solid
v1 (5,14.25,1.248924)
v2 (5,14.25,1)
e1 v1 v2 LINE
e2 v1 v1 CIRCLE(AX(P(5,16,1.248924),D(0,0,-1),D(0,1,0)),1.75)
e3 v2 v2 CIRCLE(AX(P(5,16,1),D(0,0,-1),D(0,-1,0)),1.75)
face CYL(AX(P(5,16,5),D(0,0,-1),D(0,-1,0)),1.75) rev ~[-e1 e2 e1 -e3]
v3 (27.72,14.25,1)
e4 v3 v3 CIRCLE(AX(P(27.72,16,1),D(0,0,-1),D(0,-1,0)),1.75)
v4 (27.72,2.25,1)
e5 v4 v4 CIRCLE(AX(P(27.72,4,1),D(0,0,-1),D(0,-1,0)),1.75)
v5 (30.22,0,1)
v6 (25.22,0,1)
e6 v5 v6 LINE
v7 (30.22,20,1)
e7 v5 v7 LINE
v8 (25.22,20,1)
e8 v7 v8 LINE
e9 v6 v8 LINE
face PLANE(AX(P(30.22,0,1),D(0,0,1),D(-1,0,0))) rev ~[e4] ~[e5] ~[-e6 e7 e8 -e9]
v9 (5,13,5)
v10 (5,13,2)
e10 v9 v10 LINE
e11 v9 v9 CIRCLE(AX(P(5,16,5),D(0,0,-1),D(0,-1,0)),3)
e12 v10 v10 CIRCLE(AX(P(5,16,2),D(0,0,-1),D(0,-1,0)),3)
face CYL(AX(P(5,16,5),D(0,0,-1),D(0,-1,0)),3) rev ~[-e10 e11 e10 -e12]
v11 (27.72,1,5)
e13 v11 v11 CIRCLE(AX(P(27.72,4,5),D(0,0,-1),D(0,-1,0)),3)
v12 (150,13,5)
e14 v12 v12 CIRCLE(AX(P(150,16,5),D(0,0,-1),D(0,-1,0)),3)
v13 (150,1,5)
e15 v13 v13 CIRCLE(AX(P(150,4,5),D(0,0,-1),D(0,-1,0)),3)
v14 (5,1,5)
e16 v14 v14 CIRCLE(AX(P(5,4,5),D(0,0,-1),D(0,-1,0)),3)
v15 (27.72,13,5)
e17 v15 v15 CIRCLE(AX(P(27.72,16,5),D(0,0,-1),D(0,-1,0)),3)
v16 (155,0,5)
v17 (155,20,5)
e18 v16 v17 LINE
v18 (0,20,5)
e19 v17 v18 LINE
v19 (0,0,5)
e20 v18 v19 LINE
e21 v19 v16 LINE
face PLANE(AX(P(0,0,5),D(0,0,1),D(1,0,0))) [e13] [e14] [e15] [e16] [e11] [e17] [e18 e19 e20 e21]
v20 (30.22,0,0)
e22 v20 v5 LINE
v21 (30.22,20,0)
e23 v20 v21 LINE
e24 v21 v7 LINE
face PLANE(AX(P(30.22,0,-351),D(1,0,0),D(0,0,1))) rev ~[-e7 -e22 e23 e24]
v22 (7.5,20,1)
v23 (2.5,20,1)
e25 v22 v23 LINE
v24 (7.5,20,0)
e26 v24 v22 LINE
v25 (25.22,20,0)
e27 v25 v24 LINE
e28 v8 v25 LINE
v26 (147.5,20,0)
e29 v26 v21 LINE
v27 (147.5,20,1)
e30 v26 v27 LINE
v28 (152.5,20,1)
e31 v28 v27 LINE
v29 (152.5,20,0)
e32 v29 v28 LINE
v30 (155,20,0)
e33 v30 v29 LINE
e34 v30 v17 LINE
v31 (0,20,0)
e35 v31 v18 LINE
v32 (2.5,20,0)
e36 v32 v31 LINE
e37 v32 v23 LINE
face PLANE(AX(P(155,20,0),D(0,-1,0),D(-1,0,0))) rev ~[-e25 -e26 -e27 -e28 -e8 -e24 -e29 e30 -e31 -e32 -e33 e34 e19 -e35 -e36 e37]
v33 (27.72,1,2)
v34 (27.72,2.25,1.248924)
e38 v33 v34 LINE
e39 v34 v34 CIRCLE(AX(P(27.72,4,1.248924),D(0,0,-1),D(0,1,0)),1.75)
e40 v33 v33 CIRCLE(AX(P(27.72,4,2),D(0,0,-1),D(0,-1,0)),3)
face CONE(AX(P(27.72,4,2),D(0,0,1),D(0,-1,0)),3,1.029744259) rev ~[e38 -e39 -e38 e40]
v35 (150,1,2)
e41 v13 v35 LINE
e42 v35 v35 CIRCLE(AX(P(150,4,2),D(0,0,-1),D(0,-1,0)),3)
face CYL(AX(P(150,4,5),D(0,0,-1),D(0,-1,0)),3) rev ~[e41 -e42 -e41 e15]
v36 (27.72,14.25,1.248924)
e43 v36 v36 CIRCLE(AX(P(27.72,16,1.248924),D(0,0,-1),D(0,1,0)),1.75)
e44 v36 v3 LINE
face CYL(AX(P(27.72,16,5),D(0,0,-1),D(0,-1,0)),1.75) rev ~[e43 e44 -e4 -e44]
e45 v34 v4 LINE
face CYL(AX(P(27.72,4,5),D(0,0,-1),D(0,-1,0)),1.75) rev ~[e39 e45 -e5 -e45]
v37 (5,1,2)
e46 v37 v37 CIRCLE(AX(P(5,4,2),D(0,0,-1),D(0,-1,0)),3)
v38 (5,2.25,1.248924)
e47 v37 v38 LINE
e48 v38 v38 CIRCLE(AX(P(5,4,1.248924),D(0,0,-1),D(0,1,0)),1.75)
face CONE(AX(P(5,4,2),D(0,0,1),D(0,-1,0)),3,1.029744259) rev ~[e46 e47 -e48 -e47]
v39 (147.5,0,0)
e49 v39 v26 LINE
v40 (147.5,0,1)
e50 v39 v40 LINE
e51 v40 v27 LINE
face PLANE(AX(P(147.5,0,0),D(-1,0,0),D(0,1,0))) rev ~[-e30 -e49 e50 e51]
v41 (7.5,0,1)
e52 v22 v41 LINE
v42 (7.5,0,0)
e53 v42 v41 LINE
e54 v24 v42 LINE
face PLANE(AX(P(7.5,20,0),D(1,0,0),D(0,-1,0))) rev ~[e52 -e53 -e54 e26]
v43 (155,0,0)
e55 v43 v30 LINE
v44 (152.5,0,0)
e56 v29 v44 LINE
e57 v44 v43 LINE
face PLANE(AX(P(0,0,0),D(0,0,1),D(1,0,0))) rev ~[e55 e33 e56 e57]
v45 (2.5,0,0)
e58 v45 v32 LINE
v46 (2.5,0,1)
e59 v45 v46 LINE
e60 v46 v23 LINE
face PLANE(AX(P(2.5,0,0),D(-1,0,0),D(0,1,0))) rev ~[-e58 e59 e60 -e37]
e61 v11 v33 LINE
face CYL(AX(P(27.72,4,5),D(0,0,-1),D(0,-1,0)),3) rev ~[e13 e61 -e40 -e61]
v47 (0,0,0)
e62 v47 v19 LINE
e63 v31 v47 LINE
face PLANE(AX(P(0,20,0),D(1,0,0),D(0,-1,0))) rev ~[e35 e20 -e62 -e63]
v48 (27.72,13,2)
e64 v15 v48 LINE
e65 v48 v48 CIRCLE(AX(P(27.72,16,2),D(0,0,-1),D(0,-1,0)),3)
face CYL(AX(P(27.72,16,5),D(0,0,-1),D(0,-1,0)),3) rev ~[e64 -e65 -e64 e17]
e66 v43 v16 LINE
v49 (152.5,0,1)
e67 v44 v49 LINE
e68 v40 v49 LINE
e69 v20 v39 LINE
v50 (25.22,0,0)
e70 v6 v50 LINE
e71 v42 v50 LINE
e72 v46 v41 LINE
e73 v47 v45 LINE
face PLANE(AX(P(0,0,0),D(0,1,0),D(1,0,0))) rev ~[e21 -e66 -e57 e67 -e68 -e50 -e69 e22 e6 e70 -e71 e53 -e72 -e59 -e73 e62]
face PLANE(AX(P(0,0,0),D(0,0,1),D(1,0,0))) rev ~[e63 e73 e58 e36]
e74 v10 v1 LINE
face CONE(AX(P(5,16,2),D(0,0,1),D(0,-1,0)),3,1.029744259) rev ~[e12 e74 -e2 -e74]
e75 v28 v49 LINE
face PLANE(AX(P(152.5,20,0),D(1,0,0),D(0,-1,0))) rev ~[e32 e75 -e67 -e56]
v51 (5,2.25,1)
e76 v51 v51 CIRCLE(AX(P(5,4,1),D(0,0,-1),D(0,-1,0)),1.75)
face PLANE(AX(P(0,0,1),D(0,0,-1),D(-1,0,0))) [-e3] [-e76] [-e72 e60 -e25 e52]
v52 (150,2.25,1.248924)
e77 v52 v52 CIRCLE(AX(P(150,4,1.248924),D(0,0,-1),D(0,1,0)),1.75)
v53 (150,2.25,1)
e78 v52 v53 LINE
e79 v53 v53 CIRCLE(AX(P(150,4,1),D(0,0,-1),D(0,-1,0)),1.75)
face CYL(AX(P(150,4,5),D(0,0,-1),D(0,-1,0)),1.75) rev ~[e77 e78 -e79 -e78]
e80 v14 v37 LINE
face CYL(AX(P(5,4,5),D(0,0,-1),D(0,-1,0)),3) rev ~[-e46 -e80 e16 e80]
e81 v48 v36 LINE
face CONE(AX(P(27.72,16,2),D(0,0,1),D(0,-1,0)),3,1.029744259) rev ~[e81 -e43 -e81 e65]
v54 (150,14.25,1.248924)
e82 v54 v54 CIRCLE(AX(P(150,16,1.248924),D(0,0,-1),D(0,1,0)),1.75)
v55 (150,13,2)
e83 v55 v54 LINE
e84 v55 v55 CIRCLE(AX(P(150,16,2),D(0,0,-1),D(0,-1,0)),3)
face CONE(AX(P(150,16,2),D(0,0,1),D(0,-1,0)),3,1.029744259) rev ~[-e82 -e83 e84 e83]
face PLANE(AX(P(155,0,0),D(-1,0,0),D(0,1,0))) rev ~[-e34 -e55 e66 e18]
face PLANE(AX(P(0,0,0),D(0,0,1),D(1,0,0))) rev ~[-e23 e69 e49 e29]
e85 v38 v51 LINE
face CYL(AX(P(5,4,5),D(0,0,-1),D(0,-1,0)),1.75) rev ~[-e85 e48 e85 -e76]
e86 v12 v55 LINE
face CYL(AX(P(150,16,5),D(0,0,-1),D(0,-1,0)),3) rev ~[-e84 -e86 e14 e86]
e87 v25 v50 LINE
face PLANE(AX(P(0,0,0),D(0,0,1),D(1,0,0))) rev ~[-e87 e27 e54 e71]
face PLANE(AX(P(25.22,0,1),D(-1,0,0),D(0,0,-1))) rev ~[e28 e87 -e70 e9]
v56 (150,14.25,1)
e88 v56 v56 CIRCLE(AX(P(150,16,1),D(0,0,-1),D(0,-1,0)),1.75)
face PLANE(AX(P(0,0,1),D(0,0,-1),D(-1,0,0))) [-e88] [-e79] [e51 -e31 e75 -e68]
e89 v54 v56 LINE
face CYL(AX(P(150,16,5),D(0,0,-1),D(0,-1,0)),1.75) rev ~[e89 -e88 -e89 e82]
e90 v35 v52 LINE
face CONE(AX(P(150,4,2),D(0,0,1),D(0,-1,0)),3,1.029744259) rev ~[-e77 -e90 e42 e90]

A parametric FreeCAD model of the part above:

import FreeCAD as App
import Part
import Sketcher
from FreeCAD import Vector
Q = App.Units.Quantity


def add_polygon(sketch, points):
    """Adds a closed chain of lines whose ends are joined by coincident constraints."""
    first, n = sketch.GeometryCount, len(points)
    for a, b in zip(points, points[1:] + points[:1]):
        sketch.addGeometry(Part.LineSegment(App.Vector(*a, 0), App.Vector(*b, 0)), False)
    for i in range(n):
        sketch.addConstraint(Sketcher.Constraint("Coincident", first + i, 2, first + (i + 1) % n, 1))

doc = App.newDocument("Part")
body = doc.addObject("PartDesign::Body", "Body")

sketch1 = body.newObject("Sketcher::SketchObject", "Sketch")
sketch1.AttachmentSupport = (doc.getObject("XY_Plane"), [""])
sketch1.MapMode = "FlatFace"
add_polygon(sketch1, [(0, 20), (0, 0), (155, 0), (155, 20)])
sketch1.addConstraint([
    Sketcher.Constraint("Vertical", 0),
    Sketcher.Constraint("Horizontal", 1),
    Sketcher.Constraint("Vertical", 2),
    Sketcher.Constraint("Horizontal", 3),
    Sketcher.Constraint("Coincident", 0, 2, -1, 1),
    Sketcher.Constraint("DistanceX", 1, 1, 1, 2, Q("155 mm")),
    Sketcher.Constraint("DistanceY", 0, 2, 0, 1, Q("20 mm")),
])
pad1 = body.newObject("PartDesign::Pad", "Pad")
pad1.Profile = sketch1
pad1.Length = 5

sketch2 = body.newObject("Sketcher::SketchObject", "Sketch001")
sketch2.AttachmentSupport = (doc.getObject("XY_Plane"), [""])
sketch2.MapMode = "FlatFace"
add_polygon(sketch2, [(152, 20), (152, 0), (148, 0), (148, 20)])
add_polygon(sketch2, [(8, 20), (8, 0), (2, 0), (2, 20)])
sketch2.addConstraint([
    Sketcher.Constraint("Vertical", 0),
    Sketcher.Constraint("Horizontal", 1),
    Sketcher.Constraint("Vertical", 2),
    Sketcher.Constraint("Horizontal", 3),
    Sketcher.Constraint("Vertical", 4),
    Sketcher.Constraint("Horizontal", 5),
    Sketcher.Constraint("Vertical", 6),
    Sketcher.Constraint("Horizontal", 7),
    Sketcher.Constraint("PointOnObject", 0, 2, -1),
    Sketcher.Constraint("PointOnObject", 4, 2, -1),
    Sketcher.Constraint("Horizontal", 3, 2, 6, 2),
    Sketcher.Constraint("Equal", 3, 5),
    Sketcher.Constraint("DistanceX", 1, 2, 1, 1, Q("5 mm")),
    Sketcher.Constraint("DistanceX", -1, 1, 5, 2, Q("2.5 mm")),
    Sketcher.Constraint("DistanceY", 0, 2, 0, 1, Q("20 mm")),
    Sketcher.Constraint("DistanceX", 4, 2, 1, 2, Q("140 mm")),
])
pocket1 = body.newObject("PartDesign::Pocket", "Pocket")
pocket1.Profile = sketch2
pocket1.Length = 1
pocket1.Reversed = True

sketch3 = body.newObject("Sketcher::SketchObject", "Sketch002")
sketch3.AttachmentSupport = (doc.getObject("XZ_Plane"), [""])
sketch3.MapMode = "FlatFace"
add_polygon(sketch3, [(30, -351), (30, 1), (25, 1), (25, -351)])
sketch3.addConstraint([
    Sketcher.Constraint("Vertical", 0),
    Sketcher.Constraint("Horizontal", 1),
    Sketcher.Constraint("Vertical", 2),
    Sketcher.Constraint("Horizontal", 3),
    Sketcher.Constraint("DistanceX", 1, 2, 1, 1, Q("5 mm")),
    Sketcher.Constraint("DistanceY", 0, 1, 0, 2, Q("352 mm")),
    Sketcher.Constraint("DistanceY", -1, 1, 0, 2, Q("1 mm")),
    Sketcher.Constraint("DistanceX", -1, 1, 0, 2, Q("30.22 mm")),
])
pocket2 = body.newObject("PartDesign::Pocket", "Pocket001")
pocket2.Profile = sketch3
pocket2.Type = "ThroughAll"

sketch4 = body.newObject("Sketcher::SketchObject", "Sketch003")
sketch4.AttachmentSupport = (doc.getObject("XY_Plane"), [""])
sketch4.MapMode = "FlatFace"
sketch4.AttachmentOffset = App.Placement(Vector(0, 0, 5), App.Rotation())
sketch4.addGeometry([
    Part.Circle(Vector(5, 4, 0), Vector(0, 0, 1), 1.8),
    Part.Circle(Vector(5, 16, 0), Vector(0, 0, 1), 1.8),
    Part.Circle(Vector(27.7, 16, 0), Vector(0, 0, 1), 1.8),
    Part.Circle(Vector(27.7, 4, 0), Vector(0, 0, 1), 1.8),
    Part.Circle(Vector(150, 16, 0), Vector(0, 0, 1), 1.8),
    Part.Circle(Vector(150, 4, 0), Vector(0, 0, 1), 1.8),
], False)
sketch4.addConstraint([
    Sketcher.Constraint("Equal", 0, 1),
    Sketcher.Constraint("Equal", 1, 2),
    Sketcher.Constraint("Equal", 2, 3),
    Sketcher.Constraint("Equal", 3, 4),
    Sketcher.Constraint("Equal", 4, 5),
    Sketcher.Constraint("Horizontal", 1, 3, 2, 3),
    Sketcher.Constraint("Horizontal", 0, 3, 3, 3),
    Sketcher.Constraint("Horizontal", 2, 3, 4, 3),
    Sketcher.Constraint("Horizontal", 3, 3, 5, 3),
    Sketcher.Constraint("Vertical", 0, 3, 1, 3),
    Sketcher.Constraint("Vertical", 2, 3, 3, 3),
    Sketcher.Constraint("Vertical", 4, 3, 5, 3),
    Sketcher.Constraint("Diameter", 0, Q("3.5 mm")),
    Sketcher.Constraint("DistanceX", -1, 1, 0, 3, Q("5 mm")),
    Sketcher.Constraint("DistanceY", -1, 1, 0, 3, Q("4 mm")),
    Sketcher.Constraint("DistanceY", -1, 1, 1, 3, Q("16 mm")),
    Sketcher.Constraint("DistanceX", -1, 1, 4, 3, Q("150 mm")),
    Sketcher.Constraint("DistanceX", -1, 1, 2, 3, Q("27.72 mm")),
])
doc.recompute()
hole = body.newObject("PartDesign::Hole", "Hole")
hole.Profile = sketch4
hole.ThreadType = "None"
hole.Diameter = 3.5
hole.DepthType = "ThroughAll"

sketch5 = body.newObject("Sketcher::SketchObject", "Sketch004")
sketch5.AttachmentSupport = (doc.getObject("XY_Plane"), [""])
sketch5.MapMode = "FlatFace"
sketch5.AttachmentOffset = App.Placement(Vector(0, 0, 5), App.Rotation())
sketch5.addGeometry([
    Part.Circle(Vector(5, 4, 0), Vector(0, 0, 1), 3),
    Part.Circle(Vector(5, 16, 0), Vector(0, 0, 1), 3),
    Part.Circle(Vector(27.7, 4, 0), Vector(0, 0, 1), 3),
    Part.Circle(Vector(27.7, 16, 0), Vector(0, 0, 1), 3),
    Part.Circle(Vector(150, 16, 0), Vector(0, 0, 1), 3),
    Part.Circle(Vector(150, 4, 0), Vector(0, 0, 1), 3),
], False)
sketch5.addConstraint([
    Sketcher.Constraint("Equal", 0, 1),
    Sketcher.Constraint("Equal", 1, 2),
    Sketcher.Constraint("Equal", 2, 3),
    Sketcher.Constraint("Equal", 3, 4),
    Sketcher.Constraint("Equal", 4, 5),
    Sketcher.Constraint("Horizontal", 0, 3, 2, 3),
    Sketcher.Constraint("Horizontal", 1, 3, 3, 3),
    Sketcher.Constraint("Horizontal", 3, 3, 4, 3),
    Sketcher.Constraint("Horizontal", 2, 3, 5, 3),
    Sketcher.Constraint("Vertical", 0, 3, 1, 3),
    Sketcher.Constraint("Vertical", 2, 3, 3, 3),
    Sketcher.Constraint("Vertical", 4, 3, 5, 3),
    Sketcher.Constraint("Diameter", 0, Q("6 mm")),
    Sketcher.Constraint("DistanceX", -1, 1, 0, 3, Q("5 mm")),
    Sketcher.Constraint("DistanceY", -1, 1, 0, 3, Q("4 mm")),
    Sketcher.Constraint("DistanceY", -1, 1, 1, 3, Q("16 mm")),
    Sketcher.Constraint("DistanceX", -1, 1, 4, 3, Q("150 mm")),
    Sketcher.Constraint("DistanceX", -1, 1, 2, 3, Q("27.72 mm")),
])
doc.recompute()
hole2 = body.newObject("PartDesign::Hole", "Hole001")
hole2.Profile = sketch5
hole2.ThreadType = "None"
hole2.Diameter = 6
hole2.DepthType = "Dimension"
hole2.Depth = 3
hole2.DrillPoint = "Angled"
hole2.DrillPointAngle = 118

doc.recompute()
